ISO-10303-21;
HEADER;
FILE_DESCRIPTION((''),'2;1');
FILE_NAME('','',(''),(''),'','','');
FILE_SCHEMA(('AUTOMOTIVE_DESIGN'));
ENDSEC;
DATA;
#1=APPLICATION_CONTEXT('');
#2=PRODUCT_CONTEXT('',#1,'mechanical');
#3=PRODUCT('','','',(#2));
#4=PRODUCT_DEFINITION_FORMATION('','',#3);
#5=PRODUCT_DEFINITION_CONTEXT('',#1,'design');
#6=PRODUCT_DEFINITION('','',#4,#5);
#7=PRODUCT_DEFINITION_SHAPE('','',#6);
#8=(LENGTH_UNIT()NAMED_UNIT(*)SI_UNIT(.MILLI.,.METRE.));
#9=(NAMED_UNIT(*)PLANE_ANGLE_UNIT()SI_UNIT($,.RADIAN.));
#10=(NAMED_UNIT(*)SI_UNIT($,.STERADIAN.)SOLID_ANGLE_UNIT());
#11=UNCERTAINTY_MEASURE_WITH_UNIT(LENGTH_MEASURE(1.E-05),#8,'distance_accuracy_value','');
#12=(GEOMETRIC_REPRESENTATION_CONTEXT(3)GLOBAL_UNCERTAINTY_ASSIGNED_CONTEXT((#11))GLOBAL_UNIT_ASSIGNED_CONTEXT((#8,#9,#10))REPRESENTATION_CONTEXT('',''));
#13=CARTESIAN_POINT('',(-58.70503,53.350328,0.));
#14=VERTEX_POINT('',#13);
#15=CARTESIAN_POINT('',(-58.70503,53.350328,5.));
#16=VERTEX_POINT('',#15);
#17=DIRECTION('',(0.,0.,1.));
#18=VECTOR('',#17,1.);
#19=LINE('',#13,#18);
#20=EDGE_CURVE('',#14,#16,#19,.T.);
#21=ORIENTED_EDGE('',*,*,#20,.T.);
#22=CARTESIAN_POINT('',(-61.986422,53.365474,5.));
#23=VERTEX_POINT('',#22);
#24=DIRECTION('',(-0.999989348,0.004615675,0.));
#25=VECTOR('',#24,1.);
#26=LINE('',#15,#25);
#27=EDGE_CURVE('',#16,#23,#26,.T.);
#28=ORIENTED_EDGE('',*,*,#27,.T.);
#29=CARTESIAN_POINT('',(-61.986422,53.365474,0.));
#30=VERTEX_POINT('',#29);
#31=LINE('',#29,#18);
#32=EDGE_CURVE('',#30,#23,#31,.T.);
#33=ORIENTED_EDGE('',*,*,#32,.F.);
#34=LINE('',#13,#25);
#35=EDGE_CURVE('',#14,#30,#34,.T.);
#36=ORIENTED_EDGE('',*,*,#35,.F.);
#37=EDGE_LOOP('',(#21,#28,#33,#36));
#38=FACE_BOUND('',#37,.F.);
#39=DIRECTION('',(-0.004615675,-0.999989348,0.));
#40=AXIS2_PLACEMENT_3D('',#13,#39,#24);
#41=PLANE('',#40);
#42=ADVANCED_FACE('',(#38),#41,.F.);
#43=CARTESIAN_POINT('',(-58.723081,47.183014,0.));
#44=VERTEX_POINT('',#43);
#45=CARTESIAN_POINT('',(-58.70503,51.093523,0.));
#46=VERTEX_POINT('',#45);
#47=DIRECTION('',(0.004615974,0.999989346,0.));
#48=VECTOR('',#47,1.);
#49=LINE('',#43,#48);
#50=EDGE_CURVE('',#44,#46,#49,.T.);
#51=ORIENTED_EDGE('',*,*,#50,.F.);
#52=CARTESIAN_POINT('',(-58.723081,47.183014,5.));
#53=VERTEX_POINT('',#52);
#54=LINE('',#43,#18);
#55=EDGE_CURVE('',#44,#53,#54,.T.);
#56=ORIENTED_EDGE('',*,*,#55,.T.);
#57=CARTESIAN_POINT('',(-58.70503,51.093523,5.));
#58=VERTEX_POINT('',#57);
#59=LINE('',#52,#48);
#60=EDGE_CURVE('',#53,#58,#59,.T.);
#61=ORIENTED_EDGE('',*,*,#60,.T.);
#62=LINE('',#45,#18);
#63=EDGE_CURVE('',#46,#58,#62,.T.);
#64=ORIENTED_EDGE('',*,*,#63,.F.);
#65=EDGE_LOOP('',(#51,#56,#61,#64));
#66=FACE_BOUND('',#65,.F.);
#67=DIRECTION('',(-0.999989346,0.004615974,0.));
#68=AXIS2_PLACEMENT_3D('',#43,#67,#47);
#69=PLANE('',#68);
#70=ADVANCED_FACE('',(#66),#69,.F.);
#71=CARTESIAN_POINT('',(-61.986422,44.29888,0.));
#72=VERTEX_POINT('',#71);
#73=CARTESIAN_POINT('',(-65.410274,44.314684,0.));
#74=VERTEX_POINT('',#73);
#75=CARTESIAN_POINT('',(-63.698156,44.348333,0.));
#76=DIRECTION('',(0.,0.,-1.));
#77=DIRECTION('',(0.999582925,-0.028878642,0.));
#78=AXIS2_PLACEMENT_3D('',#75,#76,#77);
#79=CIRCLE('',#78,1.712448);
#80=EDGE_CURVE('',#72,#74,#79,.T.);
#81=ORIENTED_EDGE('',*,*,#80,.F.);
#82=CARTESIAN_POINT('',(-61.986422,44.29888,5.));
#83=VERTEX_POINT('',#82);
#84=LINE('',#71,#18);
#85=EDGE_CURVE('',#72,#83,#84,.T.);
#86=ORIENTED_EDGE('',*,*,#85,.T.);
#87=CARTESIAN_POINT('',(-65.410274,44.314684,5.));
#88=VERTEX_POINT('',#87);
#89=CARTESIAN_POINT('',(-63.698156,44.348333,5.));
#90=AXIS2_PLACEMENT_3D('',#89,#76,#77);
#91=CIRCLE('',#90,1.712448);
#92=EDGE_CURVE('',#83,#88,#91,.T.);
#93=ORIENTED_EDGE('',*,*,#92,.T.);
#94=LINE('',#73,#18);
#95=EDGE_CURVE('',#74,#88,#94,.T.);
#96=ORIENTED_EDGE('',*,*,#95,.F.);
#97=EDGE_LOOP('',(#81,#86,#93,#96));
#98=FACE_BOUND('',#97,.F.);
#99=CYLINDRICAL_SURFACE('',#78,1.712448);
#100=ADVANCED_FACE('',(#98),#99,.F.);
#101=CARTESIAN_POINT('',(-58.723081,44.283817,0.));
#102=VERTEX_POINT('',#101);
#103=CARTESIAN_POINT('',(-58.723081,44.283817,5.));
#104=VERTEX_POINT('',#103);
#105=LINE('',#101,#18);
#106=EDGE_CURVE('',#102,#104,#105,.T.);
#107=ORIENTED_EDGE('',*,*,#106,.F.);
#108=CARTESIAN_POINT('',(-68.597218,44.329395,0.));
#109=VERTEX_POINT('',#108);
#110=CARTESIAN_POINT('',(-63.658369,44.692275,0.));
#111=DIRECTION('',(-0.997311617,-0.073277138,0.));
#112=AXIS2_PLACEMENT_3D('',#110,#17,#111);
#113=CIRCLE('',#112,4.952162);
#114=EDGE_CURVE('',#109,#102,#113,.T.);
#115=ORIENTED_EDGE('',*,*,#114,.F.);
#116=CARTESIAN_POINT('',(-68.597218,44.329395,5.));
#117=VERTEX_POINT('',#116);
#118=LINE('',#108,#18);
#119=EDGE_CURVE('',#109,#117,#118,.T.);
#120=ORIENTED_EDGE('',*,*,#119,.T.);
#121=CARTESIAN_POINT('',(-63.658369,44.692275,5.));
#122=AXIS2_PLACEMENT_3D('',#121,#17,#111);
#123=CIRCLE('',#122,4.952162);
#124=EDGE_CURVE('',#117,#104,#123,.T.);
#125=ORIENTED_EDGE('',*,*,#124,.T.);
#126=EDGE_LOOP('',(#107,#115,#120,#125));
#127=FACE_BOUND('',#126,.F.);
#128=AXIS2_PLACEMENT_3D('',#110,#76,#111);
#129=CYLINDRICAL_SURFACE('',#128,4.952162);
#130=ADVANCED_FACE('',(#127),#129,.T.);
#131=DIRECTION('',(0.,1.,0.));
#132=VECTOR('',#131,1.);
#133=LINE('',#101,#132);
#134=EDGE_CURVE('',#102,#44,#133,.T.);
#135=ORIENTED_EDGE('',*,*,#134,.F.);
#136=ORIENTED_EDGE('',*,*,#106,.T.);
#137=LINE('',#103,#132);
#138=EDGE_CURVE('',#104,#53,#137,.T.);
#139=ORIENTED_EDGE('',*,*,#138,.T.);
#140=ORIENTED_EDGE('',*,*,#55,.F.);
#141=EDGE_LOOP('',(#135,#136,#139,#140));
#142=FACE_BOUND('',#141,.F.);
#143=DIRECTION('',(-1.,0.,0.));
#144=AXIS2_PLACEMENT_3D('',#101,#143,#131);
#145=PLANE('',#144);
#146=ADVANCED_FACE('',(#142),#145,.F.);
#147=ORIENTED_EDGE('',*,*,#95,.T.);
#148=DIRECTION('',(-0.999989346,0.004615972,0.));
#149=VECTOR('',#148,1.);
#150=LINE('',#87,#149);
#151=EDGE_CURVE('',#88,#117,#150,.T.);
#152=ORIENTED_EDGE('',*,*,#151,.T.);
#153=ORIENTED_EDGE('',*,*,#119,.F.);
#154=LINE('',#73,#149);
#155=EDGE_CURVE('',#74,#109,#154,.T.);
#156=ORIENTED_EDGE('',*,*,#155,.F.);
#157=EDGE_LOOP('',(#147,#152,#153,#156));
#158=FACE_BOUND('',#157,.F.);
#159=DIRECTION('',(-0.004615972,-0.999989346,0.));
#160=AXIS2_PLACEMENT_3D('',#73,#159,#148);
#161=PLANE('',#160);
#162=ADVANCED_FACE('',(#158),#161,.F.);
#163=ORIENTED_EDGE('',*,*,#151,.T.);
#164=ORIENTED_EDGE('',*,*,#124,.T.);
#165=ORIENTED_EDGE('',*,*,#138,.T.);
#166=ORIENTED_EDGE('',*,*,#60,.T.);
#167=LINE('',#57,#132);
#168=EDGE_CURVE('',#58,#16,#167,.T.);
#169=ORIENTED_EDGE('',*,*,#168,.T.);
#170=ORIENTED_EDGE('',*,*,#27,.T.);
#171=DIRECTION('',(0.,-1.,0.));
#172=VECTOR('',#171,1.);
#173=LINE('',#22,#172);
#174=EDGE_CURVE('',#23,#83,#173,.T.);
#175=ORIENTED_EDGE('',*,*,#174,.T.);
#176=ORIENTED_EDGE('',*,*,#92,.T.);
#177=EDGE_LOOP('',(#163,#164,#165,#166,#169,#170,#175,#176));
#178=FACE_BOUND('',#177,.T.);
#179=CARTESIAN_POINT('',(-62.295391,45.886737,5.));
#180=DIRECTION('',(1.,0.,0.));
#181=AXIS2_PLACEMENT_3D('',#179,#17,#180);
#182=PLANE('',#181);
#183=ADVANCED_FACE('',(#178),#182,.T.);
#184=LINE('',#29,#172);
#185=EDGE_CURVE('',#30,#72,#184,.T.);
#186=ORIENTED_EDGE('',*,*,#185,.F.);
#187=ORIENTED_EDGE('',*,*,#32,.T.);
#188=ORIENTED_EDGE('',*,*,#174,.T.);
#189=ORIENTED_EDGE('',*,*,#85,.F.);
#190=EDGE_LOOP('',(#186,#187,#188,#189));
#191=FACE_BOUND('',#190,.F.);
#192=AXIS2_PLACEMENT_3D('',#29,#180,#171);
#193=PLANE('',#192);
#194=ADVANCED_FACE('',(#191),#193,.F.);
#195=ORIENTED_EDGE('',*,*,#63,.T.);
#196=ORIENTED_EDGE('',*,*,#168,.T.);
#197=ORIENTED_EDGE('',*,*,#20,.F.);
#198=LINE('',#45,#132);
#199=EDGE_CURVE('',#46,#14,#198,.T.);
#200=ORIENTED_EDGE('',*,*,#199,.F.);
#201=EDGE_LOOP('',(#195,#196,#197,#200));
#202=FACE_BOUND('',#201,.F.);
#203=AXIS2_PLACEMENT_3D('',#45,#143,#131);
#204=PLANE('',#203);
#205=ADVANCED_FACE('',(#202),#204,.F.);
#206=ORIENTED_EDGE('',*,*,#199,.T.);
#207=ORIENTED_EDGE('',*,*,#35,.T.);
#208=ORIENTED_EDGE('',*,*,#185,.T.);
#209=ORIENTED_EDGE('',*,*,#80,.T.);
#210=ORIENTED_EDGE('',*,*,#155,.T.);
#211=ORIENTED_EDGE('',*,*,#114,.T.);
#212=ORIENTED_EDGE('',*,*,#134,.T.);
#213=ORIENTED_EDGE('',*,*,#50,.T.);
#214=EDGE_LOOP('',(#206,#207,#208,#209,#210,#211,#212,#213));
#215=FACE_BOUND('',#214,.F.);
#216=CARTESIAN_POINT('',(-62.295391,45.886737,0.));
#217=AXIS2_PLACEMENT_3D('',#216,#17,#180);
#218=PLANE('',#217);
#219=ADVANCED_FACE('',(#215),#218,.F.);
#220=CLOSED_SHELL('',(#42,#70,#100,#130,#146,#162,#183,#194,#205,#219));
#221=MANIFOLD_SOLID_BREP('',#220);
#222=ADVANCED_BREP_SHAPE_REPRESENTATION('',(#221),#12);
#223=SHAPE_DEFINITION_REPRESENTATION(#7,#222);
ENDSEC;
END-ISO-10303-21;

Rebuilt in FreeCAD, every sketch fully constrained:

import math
import FreeCAD as App
import Part
import Sketcher
from FreeCAD import Vector

doc = App.newDocument("Part")
body = doc.addObject("PartDesign::Body", "Body")

sketch1 = body.newObject("Sketcher::SketchObject", "Sketch")
sketch1.AttachmentSupport = (doc.getObject("XY_Plane"), [""])
sketch1.MapMode = "FlatFace"
sketch1.addGeometry([
    Part.LineSegment(Vector(-65.410274, 44.314684, 0), Vector(-68.597218, 44.329395, 0)),
    Part.ArcOfCircle(Part.Circle(Vector(-63.658369, 44.692275, 0), Vector(0, 0, 1), 4.952162), math.radians(-175.797763), math.radians(-4.731176)),
    Part.LineSegment(Vector(-58.723081, 44.283817, 0), Vector(-58.723081, 47.183014, 0)),
    Part.LineSegment(Vector(-58.723081, 47.183014, 0), Vector(-58.70503, 51.093523, 0)),
    Part.LineSegment(Vector(-58.70503, 51.093523, 0), Vector(-58.70503, 53.350328, 0)),
    Part.LineSegment(Vector(-58.70503, 53.350328, 0), Vector(-61.986422, 53.365474, 0)),
    Part.LineSegment(Vector(-61.986422, 53.365474, 0), Vector(-61.986422, 44.29888, 0)),
    Part.ArcOfCircle(Part.Circle(Vector(-63.698156, 44.348333, 0), Vector(0, 0, 1), 1.712448), math.radians(-178.87408), math.radians(-1.654854)),
], False)
sketch1.addConstraint([
    Sketcher.Constraint("Coincident", 0, 2, 1, 1),
    Sketcher.Constraint("Coincident", 1, 2, 2, 1),
    Sketcher.Constraint("Coincident", 2, 2, 3, 1),
    Sketcher.Constraint("Coincident", 3, 2, 4, 1),
    Sketcher.Constraint("Coincident", 4, 2, 5, 1),
    Sketcher.Constraint("Coincident", 5, 2, 6, 1),
    Sketcher.Constraint("Coincident", 6, 2, 7, 2),
    Sketcher.Constraint("Coincident", 7, 1, 0, 1),
    Sketcher.Constraint("Vertical", 2),
    Sketcher.Constraint("Vertical", 4),
    Sketcher.Constraint("Vertical", 6),
    Sketcher.Constraint("Radius", 7, 1.712448),
    Sketcher.Constraint("Radius", 1, 4.952162),
    Sketcher.Constraint("DistanceY", 1, 3, 5, 2, 8.673199),
    Sketcher.Constraint("Distance", 3, 3.910551),
    Sketcher.Constraint("DistanceY", 2, 1, 2, 2, 2.899197),
    Sketcher.Constraint("DistanceY", 4, 1, 4, 2, 2.256805),
    Sketcher.Constraint("DistanceY", 6, 2, 6, 1, 9.066594),
    Sketcher.Constraint("DistanceX", 1, 3, -1, 1, 63.658369),
    Sketcher.Constraint("DistanceX", 0, 2, -1, 1, 68.597218),
    Sketcher.Constraint("DistanceX", 1, 2, -1, 1, 58.723081),
    Sketcher.Constraint("DistanceX", 3, 2, -1, 1, 58.70503),
    Sketcher.Constraint("DistanceX", 5, 2, -1, 1, 61.986422),
    Sketcher.Constraint("DistanceY", -1, 1, 6, 2, 44.29888),
    Sketcher.Constraint("DistanceX", 0, 2, 7, 3, 4.899062),
    Sketcher.Constraint("DistanceY", 7, 1, 7, 3, 0.033649),
])
pad1 = body.newObject("PartDesign::Pad", "Pad")
pad1.Profile = sketch1
pad1.Length = 5

doc.recompute()
